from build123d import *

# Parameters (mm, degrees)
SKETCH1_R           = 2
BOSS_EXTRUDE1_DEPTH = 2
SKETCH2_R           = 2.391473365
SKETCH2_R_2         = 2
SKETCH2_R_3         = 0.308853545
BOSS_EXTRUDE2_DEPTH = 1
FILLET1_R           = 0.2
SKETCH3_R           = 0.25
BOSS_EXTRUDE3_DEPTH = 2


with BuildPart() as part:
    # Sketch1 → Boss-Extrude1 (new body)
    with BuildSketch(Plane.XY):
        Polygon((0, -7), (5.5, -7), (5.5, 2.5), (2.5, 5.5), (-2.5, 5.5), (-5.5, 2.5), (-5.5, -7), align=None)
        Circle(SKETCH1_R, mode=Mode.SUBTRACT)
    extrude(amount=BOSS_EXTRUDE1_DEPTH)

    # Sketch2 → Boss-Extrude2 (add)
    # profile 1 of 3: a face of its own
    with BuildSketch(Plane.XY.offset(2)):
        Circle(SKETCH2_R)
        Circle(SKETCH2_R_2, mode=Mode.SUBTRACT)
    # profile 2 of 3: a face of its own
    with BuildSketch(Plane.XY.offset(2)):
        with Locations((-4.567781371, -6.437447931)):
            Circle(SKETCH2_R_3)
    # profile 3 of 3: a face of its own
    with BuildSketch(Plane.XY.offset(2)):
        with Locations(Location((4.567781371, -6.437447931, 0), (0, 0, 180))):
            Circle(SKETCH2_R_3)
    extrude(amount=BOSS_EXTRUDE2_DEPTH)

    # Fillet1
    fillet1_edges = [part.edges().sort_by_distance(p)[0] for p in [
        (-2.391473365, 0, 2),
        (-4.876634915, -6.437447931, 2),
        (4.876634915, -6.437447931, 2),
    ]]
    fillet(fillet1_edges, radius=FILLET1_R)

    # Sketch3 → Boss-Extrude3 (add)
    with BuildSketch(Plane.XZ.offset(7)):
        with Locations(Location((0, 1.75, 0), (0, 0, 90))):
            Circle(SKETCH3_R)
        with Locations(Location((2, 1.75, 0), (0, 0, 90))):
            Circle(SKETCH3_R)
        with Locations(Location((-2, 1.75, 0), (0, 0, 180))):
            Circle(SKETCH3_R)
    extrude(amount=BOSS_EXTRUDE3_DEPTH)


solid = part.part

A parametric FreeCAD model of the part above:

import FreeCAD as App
import Part
import Sketcher
Q = App.Units.Quantity


def edges_at(feature, points):
    """Names of the edges that pass closest to the given points."""
    edges = feature.Shape.Edges
    near = lambda p: min(range(len(edges)), key=lambda i: edges[i].distToShape(Part.Vertex(*p))[0])
    return sorted({f"Edge{near(p) + 1}" for p in points})

doc = App.newDocument("Part")
body = doc.addObject("PartDesign::Body", "Body")

# Sketch on XY plane
sketch1 = body.newObject("Sketcher::SketchObject", "Sketch")
sketch1.AttachmentSupport = (doc.getObject("XY_Plane"), [""])
sketch1.MapMode = "FlatFace"
sketch1.addGeometry([
    Part.LineSegment(App.Vector(5.5, -7, 0), App.Vector(5.5, 2.5, 0)),  # 0
    Part.LineSegment(App.Vector(5.5, 2.5, 0), App.Vector(2.5, 5.5, 0)),  # 1
    Part.LineSegment(App.Vector(2.5, 5.5, 0), App.Vector(-2.5, 5.5, 0)),  # 2
    Part.LineSegment(App.Vector(-2.5, 5.5, 0), App.Vector(-5.5, 2.5, 0)),  # 3
    Part.LineSegment(App.Vector(-5.5, 2.5, 0), App.Vector(-5.5, -7, 0)),  # 4
    Part.LineSegment(App.Vector(-5.5, -7, 0), App.Vector(5.5, -7, 0)),  # 5
    Part.Circle(App.Vector(0, 0, 0), App.Vector(0, 0, 1), 2),  # 6
], False)
sketch1.addConstraint([
    Sketcher.Constraint("Coincident", 0, 2, 1, 1),
    Sketcher.Constraint("Coincident", 1, 2, 2, 1),
    Sketcher.Constraint("Coincident", 2, 2, 3, 1),
    Sketcher.Constraint("Coincident", 3, 2, 4, 1),
    Sketcher.Constraint("Coincident", 4, 2, 5, 1),
    Sketcher.Constraint("Coincident", 5, 2, 0, 1),
    Sketcher.Constraint("Vertical", 0),
    Sketcher.Constraint("Horizontal", 2),
    Sketcher.Constraint("Vertical", 4),
    Sketcher.Constraint("Horizontal", 5),
    Sketcher.Constraint("Coincident", 6, 3, -1, 1),
    Sketcher.Constraint("Symmetric", 0, 2, 3, 2, -2),
    Sketcher.Constraint("Perpendicular", 1, 3),
    Sketcher.Constraint("Equal", 1, 3),
    Sketcher.Constraint("Diameter", 6, Q("4 mm")),
    Sketcher.Constraint("DistanceX", 2, 2, 2, 1, Q("5 mm")),
    Sketcher.Constraint("DistanceX", 5, 1, 5, 2, Q("11 mm")),
    Sketcher.Constraint("DistanceY", 0, 1, 0, 2, Q("9.5 mm")),
    Sketcher.Constraint("DistanceY", 4, 2, -1, 1, Q("7 mm")),
])
pad1 = body.newObject("PartDesign::Pad", "Pad")
pad1.Profile = sketch1
pad1.Length = 2

# Sketch on XY plane
sketch2 = body.newObject("Sketcher::SketchObject", "Sketch001")
sketch2.AttachmentSupport = (doc.getObject("XY_Plane"), [""])
sketch2.MapMode = "FlatFace"
sketch2.AttachmentOffset = App.Placement(App.Vector(0, 0, 2), App.Rotation())
sketch2.addGeometry([
    Part.Circle(App.Vector(0, 0, 0), App.Vector(0, 0, 1), 2.39),
    Part.Circle(App.Vector(0, 0, 0), App.Vector(0, 0, 1), 2),
    Part.Circle(App.Vector(-4.57, -6.44, 0), App.Vector(0, 0, 1), 0.31),
    Part.Circle(App.Vector(4.57, -6.44, 0), App.Vector(0, 0, 1), 0.31),
], False)
sketch2.addConstraint([
    Sketcher.Constraint("Coincident", 0, 3, -1, 1),
    Sketcher.Constraint("Coincident", 1, 3, -1, 1),
    Sketcher.Constraint("Equal", 2, 3),
    Sketcher.Constraint("Symmetric", 2, 3, 3, 3, -2),
    Sketcher.Constraint("Diameter", 1, Q("4 mm")),
    Sketcher.Constraint("Diameter", 0, Q("4.782947 mm")),
    Sketcher.Constraint("Diameter", 2, Q("0.617707 mm")),
    Sketcher.Constraint("DistanceX", 2, 3, -1, 1, Q("4.567781 mm")),
    Sketcher.Constraint("DistanceY", 2, 3, -1, 1, Q("6.437448 mm")),
])
pad2 = body.newObject("PartDesign::Pad", "Pad001")
pad2.Profile = sketch2
pad2.Length = 1
doc.recompute()

fillet = body.newObject("PartDesign::Fillet", "Fillet")
fillet.Base = (pad2, edges_at(pad2, [(-2.391, 0, 2), (-4.877, -6.437, 2), (4.877, -6.437, 2)]))
fillet.Radius = 0.2

# Sketch on XZ plane
sketch3 = body.newObject("Sketcher::SketchObject", "Sketch002")
sketch3.AttachmentSupport = (doc.getObject("XZ_Plane"), [""])
sketch3.MapMode = "FlatFace"
sketch3.AttachmentOffset = App.Placement(App.Vector(0, 0, 7), App.Rotation())
sketch3.addGeometry([
    Part.Circle(App.Vector(0, 1.75, 0), App.Vector(0, 0, 1), 0.25),
    Part.Circle(App.Vector(2, 1.75, 0), App.Vector(0, 0, 1), 0.25),
    Part.Circle(App.Vector(-2, 1.75, 0), App.Vector(0, 0, 1), 0.25),
], False)
sketch3.addConstraint([
    Sketcher.Constraint("Equal", 0, 1),
    Sketcher.Constraint("Equal", 1, 2),
    Sketcher.Constraint("Symmetric", 1, 3, 2, 3, -2),
    Sketcher.Constraint("PointOnObject", 0, 3, -2),
    Sketcher.Constraint("Horizontal", 0, 3, 1, 3),
    Sketcher.Constraint("Diameter", 0, Q("0.5 mm")),
    Sketcher.Constraint("DistanceX", -1, 1, 1, 3, Q("2 mm")),
    Sketcher.Constraint("DistanceY", -1, 1, 0, 3, Q("1.75 mm")),
])
pad3 = body.newObject("PartDesign::Pad", "Pad002")
pad3.Profile = sketch3
pad3.Length = 2

doc.recompute()
